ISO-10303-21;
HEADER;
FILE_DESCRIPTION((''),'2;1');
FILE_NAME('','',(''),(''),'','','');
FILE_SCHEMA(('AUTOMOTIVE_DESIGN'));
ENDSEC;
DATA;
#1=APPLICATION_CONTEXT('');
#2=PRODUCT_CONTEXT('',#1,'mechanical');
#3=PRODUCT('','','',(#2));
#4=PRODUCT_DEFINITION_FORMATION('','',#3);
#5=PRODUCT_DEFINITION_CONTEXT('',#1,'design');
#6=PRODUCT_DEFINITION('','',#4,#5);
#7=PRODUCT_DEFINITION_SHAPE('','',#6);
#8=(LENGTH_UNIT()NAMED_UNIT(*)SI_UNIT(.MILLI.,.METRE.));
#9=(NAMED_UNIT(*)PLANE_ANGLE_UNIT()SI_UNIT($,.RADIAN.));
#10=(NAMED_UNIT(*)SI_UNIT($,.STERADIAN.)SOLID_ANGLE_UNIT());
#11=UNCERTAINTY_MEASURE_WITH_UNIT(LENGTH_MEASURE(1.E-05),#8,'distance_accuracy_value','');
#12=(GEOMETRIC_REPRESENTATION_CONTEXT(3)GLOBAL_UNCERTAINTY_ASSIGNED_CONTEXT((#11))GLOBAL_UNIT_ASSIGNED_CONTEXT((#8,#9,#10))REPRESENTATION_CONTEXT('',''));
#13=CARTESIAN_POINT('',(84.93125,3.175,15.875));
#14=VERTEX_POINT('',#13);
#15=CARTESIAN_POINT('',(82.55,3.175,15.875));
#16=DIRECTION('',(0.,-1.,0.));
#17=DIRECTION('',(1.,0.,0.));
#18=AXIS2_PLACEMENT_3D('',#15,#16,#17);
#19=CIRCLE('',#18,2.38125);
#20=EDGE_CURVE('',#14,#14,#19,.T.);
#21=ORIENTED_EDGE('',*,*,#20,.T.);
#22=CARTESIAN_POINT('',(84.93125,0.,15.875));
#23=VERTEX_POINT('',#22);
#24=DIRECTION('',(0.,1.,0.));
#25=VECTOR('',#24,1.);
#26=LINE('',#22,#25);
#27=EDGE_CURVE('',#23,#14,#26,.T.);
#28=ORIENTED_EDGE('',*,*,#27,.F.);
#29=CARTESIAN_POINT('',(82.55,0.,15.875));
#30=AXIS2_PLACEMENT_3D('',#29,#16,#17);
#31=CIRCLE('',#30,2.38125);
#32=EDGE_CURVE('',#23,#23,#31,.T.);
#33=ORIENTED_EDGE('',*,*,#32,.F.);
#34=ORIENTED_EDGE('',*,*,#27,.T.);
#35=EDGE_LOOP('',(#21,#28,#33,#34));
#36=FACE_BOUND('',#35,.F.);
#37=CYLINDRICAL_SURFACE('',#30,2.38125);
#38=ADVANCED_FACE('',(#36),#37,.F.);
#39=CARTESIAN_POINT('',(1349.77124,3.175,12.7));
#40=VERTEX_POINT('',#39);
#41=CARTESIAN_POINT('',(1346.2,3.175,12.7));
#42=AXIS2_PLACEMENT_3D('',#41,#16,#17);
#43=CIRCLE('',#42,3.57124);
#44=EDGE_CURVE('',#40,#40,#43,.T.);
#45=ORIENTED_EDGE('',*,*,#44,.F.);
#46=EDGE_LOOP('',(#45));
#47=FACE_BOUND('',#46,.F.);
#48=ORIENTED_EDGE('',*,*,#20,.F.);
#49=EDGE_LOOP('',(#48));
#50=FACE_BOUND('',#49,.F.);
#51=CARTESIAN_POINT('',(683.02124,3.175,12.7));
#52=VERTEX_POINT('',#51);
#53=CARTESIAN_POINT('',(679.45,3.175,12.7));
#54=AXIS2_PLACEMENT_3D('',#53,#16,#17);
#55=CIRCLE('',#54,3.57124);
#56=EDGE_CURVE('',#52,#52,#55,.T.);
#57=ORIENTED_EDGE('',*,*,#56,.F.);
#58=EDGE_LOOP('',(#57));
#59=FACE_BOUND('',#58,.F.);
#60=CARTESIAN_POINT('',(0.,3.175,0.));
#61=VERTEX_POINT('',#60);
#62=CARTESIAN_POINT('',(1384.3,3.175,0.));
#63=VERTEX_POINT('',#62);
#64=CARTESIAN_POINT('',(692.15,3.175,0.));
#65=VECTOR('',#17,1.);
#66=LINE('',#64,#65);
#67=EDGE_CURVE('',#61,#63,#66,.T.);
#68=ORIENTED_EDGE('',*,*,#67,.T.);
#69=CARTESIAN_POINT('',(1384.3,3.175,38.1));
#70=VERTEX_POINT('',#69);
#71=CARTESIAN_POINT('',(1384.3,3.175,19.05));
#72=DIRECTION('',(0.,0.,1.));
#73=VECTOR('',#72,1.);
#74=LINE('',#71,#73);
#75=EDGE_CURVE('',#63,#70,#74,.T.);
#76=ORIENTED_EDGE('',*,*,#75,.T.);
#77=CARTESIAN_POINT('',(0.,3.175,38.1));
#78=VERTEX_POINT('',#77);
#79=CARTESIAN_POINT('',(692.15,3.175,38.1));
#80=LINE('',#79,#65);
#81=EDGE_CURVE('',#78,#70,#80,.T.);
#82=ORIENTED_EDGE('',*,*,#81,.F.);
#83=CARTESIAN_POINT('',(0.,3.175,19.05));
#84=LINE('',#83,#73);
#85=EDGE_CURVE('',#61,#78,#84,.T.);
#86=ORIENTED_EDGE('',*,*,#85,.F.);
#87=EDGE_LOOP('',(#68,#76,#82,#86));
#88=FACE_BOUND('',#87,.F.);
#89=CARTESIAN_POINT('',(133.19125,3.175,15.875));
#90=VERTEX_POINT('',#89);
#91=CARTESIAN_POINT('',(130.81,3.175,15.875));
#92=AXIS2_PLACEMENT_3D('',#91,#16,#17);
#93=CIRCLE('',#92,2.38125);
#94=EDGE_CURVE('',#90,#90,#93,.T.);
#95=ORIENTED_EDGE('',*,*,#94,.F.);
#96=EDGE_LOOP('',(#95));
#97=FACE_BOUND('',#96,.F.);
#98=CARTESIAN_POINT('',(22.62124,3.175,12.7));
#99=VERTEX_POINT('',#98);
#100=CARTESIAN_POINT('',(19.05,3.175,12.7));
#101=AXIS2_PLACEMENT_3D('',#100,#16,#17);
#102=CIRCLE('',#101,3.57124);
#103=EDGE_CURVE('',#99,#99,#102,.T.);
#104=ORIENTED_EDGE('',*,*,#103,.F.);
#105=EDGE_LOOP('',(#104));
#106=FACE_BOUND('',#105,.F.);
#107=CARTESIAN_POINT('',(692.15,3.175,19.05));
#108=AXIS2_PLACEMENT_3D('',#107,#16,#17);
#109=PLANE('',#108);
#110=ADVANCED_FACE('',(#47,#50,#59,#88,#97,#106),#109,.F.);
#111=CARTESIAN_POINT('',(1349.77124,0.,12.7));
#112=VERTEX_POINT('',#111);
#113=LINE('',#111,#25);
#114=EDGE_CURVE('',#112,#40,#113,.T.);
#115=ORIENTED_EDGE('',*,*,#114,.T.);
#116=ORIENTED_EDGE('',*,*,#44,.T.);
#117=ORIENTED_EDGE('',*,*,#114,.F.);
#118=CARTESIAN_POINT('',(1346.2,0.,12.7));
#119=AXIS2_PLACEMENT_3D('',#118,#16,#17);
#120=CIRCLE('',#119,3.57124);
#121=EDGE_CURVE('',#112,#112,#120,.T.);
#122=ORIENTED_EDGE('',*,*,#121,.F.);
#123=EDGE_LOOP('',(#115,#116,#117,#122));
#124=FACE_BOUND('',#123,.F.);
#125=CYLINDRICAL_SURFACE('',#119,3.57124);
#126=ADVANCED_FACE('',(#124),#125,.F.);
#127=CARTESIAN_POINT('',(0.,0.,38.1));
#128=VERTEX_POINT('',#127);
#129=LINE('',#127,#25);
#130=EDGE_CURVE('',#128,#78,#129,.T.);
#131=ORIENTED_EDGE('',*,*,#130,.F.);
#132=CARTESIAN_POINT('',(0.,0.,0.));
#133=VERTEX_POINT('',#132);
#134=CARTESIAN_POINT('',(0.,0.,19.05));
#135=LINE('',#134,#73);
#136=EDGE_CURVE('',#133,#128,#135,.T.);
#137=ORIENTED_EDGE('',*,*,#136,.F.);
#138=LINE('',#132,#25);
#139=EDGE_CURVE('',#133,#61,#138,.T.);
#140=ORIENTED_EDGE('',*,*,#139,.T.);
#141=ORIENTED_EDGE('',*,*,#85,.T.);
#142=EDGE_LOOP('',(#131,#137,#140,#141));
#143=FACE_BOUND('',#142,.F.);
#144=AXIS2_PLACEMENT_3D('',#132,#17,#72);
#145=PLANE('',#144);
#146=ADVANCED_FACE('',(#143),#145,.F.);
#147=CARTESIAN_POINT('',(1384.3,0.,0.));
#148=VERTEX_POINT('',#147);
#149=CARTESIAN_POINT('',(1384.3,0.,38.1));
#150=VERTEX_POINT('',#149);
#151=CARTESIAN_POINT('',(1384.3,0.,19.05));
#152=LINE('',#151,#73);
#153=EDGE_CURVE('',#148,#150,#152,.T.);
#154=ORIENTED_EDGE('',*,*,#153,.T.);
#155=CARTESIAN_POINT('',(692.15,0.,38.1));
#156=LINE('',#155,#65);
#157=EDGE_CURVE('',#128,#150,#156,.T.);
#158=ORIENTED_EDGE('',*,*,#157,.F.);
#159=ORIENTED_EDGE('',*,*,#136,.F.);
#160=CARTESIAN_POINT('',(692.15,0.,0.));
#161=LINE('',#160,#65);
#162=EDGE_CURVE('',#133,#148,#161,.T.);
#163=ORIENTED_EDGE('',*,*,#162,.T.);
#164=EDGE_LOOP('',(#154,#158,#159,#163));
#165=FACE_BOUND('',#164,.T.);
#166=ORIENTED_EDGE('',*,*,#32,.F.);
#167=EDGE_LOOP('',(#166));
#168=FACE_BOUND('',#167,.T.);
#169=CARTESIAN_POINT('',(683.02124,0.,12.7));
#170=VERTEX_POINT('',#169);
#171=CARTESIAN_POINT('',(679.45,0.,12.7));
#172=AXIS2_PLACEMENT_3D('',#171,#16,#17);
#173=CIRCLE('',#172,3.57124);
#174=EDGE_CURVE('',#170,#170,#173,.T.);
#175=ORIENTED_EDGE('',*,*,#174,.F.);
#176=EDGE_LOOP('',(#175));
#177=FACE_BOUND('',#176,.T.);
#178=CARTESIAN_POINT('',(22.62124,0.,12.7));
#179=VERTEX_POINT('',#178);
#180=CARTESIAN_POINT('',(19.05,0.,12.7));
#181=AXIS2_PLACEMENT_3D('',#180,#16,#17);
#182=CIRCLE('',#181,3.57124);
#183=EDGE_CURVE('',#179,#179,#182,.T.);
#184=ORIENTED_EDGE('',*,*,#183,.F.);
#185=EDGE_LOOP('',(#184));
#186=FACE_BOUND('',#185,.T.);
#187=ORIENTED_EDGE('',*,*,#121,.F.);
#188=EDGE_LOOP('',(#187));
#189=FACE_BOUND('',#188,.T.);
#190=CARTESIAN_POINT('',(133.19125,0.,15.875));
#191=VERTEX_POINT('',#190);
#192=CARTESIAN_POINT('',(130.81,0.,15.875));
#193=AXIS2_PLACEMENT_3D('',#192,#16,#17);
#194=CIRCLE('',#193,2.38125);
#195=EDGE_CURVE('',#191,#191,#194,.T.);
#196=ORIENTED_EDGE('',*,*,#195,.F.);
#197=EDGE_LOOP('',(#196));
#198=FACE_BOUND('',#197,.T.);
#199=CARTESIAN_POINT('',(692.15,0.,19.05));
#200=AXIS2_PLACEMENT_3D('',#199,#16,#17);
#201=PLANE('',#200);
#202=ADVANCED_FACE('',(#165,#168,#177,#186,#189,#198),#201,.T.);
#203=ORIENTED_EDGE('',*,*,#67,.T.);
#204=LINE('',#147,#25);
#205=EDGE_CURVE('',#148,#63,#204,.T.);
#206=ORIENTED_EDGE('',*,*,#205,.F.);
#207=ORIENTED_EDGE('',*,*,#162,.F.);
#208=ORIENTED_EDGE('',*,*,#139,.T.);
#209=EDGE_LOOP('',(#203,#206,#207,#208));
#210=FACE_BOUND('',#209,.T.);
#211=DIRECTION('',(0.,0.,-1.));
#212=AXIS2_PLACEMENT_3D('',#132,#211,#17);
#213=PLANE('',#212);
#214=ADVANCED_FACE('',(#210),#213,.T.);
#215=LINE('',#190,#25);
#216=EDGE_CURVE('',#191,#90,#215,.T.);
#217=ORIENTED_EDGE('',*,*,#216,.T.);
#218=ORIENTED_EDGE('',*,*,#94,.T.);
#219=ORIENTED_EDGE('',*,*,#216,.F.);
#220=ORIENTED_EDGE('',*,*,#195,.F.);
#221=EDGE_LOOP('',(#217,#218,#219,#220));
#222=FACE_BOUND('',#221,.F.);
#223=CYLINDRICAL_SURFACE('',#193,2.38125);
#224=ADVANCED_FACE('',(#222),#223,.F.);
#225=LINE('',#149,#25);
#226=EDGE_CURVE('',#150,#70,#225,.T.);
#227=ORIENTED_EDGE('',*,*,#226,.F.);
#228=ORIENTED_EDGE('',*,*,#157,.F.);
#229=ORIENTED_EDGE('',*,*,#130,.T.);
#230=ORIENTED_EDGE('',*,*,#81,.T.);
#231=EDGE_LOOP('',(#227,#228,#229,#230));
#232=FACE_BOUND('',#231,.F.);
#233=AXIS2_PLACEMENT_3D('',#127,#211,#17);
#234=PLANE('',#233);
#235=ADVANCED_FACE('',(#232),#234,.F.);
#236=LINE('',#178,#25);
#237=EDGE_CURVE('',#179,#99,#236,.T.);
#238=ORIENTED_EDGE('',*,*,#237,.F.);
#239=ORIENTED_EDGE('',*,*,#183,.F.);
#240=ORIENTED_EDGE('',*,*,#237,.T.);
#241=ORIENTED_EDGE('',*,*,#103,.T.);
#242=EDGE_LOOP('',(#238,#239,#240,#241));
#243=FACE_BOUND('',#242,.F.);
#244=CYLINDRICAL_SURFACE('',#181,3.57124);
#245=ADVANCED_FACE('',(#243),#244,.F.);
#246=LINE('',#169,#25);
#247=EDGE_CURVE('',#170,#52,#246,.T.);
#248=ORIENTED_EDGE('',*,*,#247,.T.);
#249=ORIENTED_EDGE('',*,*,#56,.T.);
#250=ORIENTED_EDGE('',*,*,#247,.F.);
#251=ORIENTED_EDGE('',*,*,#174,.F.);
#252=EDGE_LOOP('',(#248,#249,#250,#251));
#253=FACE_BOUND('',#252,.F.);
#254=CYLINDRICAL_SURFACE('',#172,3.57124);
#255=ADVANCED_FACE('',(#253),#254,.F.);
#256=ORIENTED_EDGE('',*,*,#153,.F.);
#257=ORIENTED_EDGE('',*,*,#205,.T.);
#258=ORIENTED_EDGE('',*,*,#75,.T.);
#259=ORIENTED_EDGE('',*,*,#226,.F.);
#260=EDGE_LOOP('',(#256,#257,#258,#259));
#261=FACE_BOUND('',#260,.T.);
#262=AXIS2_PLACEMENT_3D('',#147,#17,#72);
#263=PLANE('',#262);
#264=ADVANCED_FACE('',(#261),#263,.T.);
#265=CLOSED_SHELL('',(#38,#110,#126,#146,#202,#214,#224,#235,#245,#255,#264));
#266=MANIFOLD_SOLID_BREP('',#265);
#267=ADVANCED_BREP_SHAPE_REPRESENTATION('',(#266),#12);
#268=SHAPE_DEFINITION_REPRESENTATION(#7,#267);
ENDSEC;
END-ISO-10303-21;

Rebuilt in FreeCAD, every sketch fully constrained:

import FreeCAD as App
import Part
import Sketcher
Q = App.Units.Quantity

doc = App.newDocument("Part")
body = doc.addObject("PartDesign::Body", "Body")

sketch1 = body.newObject("Sketcher::SketchObject", "Sketch")
sketch1.AttachmentSupport = (doc.getObject("XZ_Plane"), [""])
sketch1.MapMode = "FlatFace"
sketch1.addGeometry(Part.LineSegment(App.Vector(0, 38, 0), App.Vector(0, 0, 0)), False)
sketch1.addGeometry(Part.LineSegment(App.Vector(0, 0, 0), App.Vector(1384, 0, 0)), False)
sketch1.addGeometry(Part.LineSegment(App.Vector(1384, 0, 0), App.Vector(1384, 38, 0)), False)
sketch1.addGeometry(Part.LineSegment(App.Vector(1384, 38, 0), App.Vector(0, 38, 0)), False)
sketch1.addConstraint(Sketcher.Constraint("Coincident", 0, 2, 1, 1))
sketch1.addConstraint(Sketcher.Constraint("Coincident", 1, 2, 2, 1))
sketch1.addConstraint(Sketcher.Constraint("Coincident", 2, 2, 3, 1))
sketch1.addConstraint(Sketcher.Constraint("Coincident", 3, 2, 0, 1))
sketch1.addConstraint(Sketcher.Constraint("Vertical", 0))
sketch1.addConstraint(Sketcher.Constraint("Horizontal", 1))
sketch1.addConstraint(Sketcher.Constraint("Vertical", 2))
sketch1.addConstraint(Sketcher.Constraint("Horizontal", 3))
sketch1.addConstraint(Sketcher.Constraint("Coincident", 0, 2, -1, 1))
sketch1.addConstraint(Sketcher.Constraint("DistanceX", 1, 1, 1, 2, Q("54.5 in")))
sketch1.addConstraint(Sketcher.Constraint("DistanceY", 0, 2, 0, 1, Q("1.5 in")))
pad1 = body.newObject("PartDesign::Pad", "Pad")
pad1.Profile = sketch1
pad1.Length = Q("0.125 in")
pad1.Reversed = True

sketch2 = body.newObject("Sketcher::SketchObject", "Sketch001")
sketch2.AttachmentSupport = (doc.getObject("XZ_Plane"), [""])
sketch2.MapMode = "FlatFace"
sketch2.addGeometry(Part.Circle(App.Vector(19.1, 12.7, 0), App.Vector(0, 0, 1), 3.6), False)
sketch2.addGeometry(Part.Circle(App.Vector(82.5, 15.9, 0), App.Vector(0, 0, 1), 2.4), False)
sketch2.addGeometry(Part.Circle(App.Vector(130.8, 15.9, 0), App.Vector(0, 0, 1), 2.4), False)
sketch2.addGeometry(Part.Circle(App.Vector(679.5, 12.7, 0), App.Vector(0, 0, 1), 3.6), False)
sketch2.addGeometry(Part.Circle(App.Vector(1346.2, 12.7, 0), App.Vector(0, 0, 1), 3.6), False)
sketch2.addConstraint(Sketcher.Constraint("Equal", 1, 2))
sketch2.addConstraint(Sketcher.Constraint("Equal", 0, 3))
sketch2.addConstraint(Sketcher.Constraint("Equal", 3, 4))
sketch2.addConstraint(Sketcher.Constraint("Horizontal", 1, 3, 2, 3))
sketch2.addConstraint(Sketcher.Constraint("Horizontal", 0, 3, 3, 3))
sketch2.addConstraint(Sketcher.Constraint("Horizontal", 3, 3, 4, 3))
sketch2.addConstraint(Sketcher.Constraint("Diameter", 1, Q("0.1875 in")))
sketch2.addConstraint(Sketcher.Constraint("DistanceX", -1, 1, 4, 3, Q("53 in")))
sketch2.addConstraint(Sketcher.Constraint("DistanceX", 0, 3, 3, 3, Q("26 in")))
sketch2.addConstraint(Sketcher.Constraint("Diameter", 0, Q("0.2812 in")))
sketch2.addConstraint(Sketcher.Constraint("DistanceY", -1, 1, 0, 3, Q("0.5 in")))
sketch2.addConstraint(Sketcher.Constraint("DistanceX", 0, 3, 1, 3, Q("2.5 in")))
sketch2.addConstraint(Sketcher.Constraint("DistanceX", 1, 3, 2, 3, Q("1.9 in")))
sketch2.addConstraint(Sketcher.Constraint("DistanceX", -1, 1, 0, 3, Q("0.75 in")))
sketch2.addConstraint(Sketcher.Constraint("DistanceY", -1, 1, 1, 3, Q("0.625 in")))
pocket1 = body.newObject("PartDesign::Pocket", "Pocket")
pocket1.Profile = sketch2
pocket1.Type = "ThroughAll"

doc.recompute()
